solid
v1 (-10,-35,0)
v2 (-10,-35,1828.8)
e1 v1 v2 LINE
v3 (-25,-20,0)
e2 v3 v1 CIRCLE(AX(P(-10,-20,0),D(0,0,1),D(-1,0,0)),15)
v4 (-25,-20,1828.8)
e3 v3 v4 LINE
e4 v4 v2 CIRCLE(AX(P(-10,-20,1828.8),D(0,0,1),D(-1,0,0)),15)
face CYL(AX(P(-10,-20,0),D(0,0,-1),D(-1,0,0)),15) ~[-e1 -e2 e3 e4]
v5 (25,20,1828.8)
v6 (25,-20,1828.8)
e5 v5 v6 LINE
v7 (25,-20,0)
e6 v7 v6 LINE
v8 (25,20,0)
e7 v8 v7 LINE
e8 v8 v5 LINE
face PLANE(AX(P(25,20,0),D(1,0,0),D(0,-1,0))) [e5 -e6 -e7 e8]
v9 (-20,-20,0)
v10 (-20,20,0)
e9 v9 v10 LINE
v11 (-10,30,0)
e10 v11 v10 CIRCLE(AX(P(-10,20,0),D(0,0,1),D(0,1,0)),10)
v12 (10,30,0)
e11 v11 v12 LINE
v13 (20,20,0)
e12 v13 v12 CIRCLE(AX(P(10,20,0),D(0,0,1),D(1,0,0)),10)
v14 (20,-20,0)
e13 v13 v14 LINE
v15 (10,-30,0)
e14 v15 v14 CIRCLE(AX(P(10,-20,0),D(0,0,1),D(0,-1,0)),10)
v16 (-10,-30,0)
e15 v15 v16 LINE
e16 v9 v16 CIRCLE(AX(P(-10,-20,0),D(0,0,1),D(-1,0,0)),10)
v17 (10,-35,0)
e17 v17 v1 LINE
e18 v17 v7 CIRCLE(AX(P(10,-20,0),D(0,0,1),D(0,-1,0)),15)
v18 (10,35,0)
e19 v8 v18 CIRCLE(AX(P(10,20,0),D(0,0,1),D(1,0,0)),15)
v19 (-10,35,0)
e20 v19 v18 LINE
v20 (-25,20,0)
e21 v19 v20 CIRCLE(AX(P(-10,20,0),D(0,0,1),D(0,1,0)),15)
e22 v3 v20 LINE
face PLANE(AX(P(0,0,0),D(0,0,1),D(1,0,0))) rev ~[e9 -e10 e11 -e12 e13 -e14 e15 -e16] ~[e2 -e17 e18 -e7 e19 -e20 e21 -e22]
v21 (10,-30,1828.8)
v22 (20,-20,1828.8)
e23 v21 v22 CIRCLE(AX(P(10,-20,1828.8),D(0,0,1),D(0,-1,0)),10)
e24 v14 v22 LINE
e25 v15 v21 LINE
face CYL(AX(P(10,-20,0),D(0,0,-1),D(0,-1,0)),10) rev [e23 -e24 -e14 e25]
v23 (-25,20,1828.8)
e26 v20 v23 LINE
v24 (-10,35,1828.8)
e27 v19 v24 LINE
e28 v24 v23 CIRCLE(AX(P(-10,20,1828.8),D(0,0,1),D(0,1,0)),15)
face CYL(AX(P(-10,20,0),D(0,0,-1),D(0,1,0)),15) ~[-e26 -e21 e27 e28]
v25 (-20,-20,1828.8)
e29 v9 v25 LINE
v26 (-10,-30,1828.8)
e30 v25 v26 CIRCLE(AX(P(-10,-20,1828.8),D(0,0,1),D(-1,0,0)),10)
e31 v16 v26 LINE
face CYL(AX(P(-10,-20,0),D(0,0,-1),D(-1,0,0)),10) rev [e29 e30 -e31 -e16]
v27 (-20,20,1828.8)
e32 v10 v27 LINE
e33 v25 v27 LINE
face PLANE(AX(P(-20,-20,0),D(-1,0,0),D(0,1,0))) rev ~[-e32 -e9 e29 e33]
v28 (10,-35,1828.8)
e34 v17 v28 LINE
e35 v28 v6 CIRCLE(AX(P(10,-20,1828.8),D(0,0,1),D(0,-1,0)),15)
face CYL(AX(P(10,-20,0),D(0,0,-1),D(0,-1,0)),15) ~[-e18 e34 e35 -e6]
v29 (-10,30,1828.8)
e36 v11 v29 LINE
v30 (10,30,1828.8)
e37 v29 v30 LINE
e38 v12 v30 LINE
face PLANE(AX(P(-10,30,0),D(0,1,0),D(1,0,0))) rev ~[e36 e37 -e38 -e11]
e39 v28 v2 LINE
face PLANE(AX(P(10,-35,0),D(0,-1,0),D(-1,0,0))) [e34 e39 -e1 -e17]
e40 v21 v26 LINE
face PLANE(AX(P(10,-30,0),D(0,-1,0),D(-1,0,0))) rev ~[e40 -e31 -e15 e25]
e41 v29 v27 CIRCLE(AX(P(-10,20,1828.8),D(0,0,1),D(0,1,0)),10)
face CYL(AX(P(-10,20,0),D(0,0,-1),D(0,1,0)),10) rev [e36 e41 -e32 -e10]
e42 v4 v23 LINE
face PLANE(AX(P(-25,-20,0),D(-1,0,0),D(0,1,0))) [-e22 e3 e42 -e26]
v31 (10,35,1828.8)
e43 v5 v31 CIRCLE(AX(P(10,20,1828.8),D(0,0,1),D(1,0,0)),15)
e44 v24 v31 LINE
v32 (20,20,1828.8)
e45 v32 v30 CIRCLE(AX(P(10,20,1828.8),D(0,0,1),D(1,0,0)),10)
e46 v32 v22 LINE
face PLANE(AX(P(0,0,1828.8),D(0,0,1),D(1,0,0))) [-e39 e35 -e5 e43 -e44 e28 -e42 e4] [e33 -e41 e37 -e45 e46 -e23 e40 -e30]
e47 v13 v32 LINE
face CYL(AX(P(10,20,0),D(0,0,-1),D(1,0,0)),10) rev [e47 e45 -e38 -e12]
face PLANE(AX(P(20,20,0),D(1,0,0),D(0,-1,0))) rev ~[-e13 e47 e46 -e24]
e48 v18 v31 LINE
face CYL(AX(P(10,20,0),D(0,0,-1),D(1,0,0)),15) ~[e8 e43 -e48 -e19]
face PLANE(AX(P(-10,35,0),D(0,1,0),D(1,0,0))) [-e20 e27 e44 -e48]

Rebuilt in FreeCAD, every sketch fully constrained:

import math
import FreeCAD as App
import Part
import Sketcher
Q = App.Units.Quantity

doc = App.newDocument("Part")
body = doc.addObject("PartDesign::Body", "Body")

# Sketch on XY plane
sketch1 = doc.addObject("Sketcher::SketchObject", "Sketch")
body.addObject(sketch1)
sketch1.AttachmentSupport = (doc.XY_Plane, [""])
sketch1.MapMode = "FlatFace"
sketch1.addGeometry(Part.LineSegment(App.Vector(-25, 20, 0), App.Vector(-25, -20, 0)), False)
sketch1.addGeometry(Part.ArcOfCircle(Part.Circle(App.Vector(-10, -20, 0), App.Vector(0, 0, 1), 15), math.radians(180), math.radians(270)), False)
sketch1.addGeometry(Part.LineSegment(App.Vector(-10, -35, 0), App.Vector(10, -35, 0)), False)
sketch1.addGeometry(Part.ArcOfCircle(Part.Circle(App.Vector(10, -20, 0), App.Vector(0, 0, 1), 15), math.radians(-90), math.radians(0)), False)
sketch1.addGeometry(Part.LineSegment(App.Vector(25, -20, 0), App.Vector(25, 20, 0)), False)
sketch1.addGeometry(Part.ArcOfCircle(Part.Circle(App.Vector(10, 20, 0), App.Vector(0, 0, 1), 15), math.radians(0), math.radians(90)), False)
sketch1.addGeometry(Part.LineSegment(App.Vector(10, 35, 0), App.Vector(-10, 35, 0)), False)
sketch1.addGeometry(Part.ArcOfCircle(Part.Circle(App.Vector(-10, 20, 0), App.Vector(0, 0, 1), 15), math.radians(90), math.radians(180)), False)
sketch1.addGeometry(Part.ArcOfCircle(Part.Circle(App.Vector(-10, 20, 0), App.Vector(0, 0, 1), 10), math.radians(90), math.radians(180)), False)
sketch1.addGeometry(Part.LineSegment(App.Vector(-10, 30, 0), App.Vector(10, 30, 0)), False)
sketch1.addGeometry(Part.ArcOfCircle(Part.Circle(App.Vector(10, 20, 0), App.Vector(0, 0, 1), 10), math.radians(0), math.radians(90)), False)
sketch1.addGeometry(Part.LineSegment(App.Vector(20, 20, 0), App.Vector(20, -20, 0)), False)
sketch1.addGeometry(Part.ArcOfCircle(Part.Circle(App.Vector(10, -20, 0), App.Vector(0, 0, 1), 10), math.radians(-90), math.radians(0)), False)
sketch1.addGeometry(Part.LineSegment(App.Vector(10, -30, 0), App.Vector(-10, -30, 0)), False)
sketch1.addGeometry(Part.ArcOfCircle(Part.Circle(App.Vector(-10, -20, 0), App.Vector(0, 0, 1), 10), math.radians(180), math.radians(270)), False)
sketch1.addGeometry(Part.LineSegment(App.Vector(-20, -20, 0), App.Vector(-20, 20, 0)), False)
sketch1.addConstraint(Sketcher.Constraint("Tangent", 0, 2, 1, 1))
sketch1.addConstraint(Sketcher.Constraint("Tangent", 1, 2, 2, 1))
sketch1.addConstraint(Sketcher.Constraint("Tangent", 2, 2, 3, 1))
sketch1.addConstraint(Sketcher.Constraint("Tangent", 3, 2, 4, 1))
sketch1.addConstraint(Sketcher.Constraint("Tangent", 4, 2, 5, 1))
sketch1.addConstraint(Sketcher.Constraint("Tangent", 5, 2, 6, 1))
sketch1.addConstraint(Sketcher.Constraint("Tangent", 6, 2, 7, 1))
sketch1.addConstraint(Sketcher.Constraint("Tangent", 7, 2, 0, 1))
sketch1.addConstraint(Sketcher.Constraint("Tangent", 8, 1, 9, 1))
sketch1.addConstraint(Sketcher.Constraint("Tangent", 9, 2, 10, 2))
sketch1.addConstraint(Sketcher.Constraint("Tangent", 10, 1, 11, 1))
sketch1.addConstraint(Sketcher.Constraint("Tangent", 11, 2, 12, 2))
sketch1.addConstraint(Sketcher.Constraint("Tangent", 12, 1, 13, 1))
sketch1.addConstraint(Sketcher.Constraint("Tangent", 13, 2, 14, 2))
sketch1.addConstraint(Sketcher.Constraint("Tangent", 14, 1, 15, 1))
sketch1.addConstraint(Sketcher.Constraint("Tangent", 15, 2, 8, 2))
sketch1.addConstraint(Sketcher.Constraint("Vertical", 0))
sketch1.addConstraint(Sketcher.Constraint("Horizontal", 2))
sketch1.addConstraint(Sketcher.Constraint("Vertical", 4))
sketch1.addConstraint(Sketcher.Constraint("Horizontal", 6))
sketch1.addConstraint(Sketcher.Constraint("Horizontal", 9))
sketch1.addConstraint(Sketcher.Constraint("Vertical", 11))
sketch1.addConstraint(Sketcher.Constraint("Horizontal", 13))
sketch1.addConstraint(Sketcher.Constraint("Vertical", 15))
sketch1.addConstraint(Sketcher.Constraint("Coincident", 8, 3, 7, 3))
sketch1.addConstraint(Sketcher.Constraint("Coincident", 10, 3, 5, 3))
sketch1.addConstraint(Sketcher.Constraint("Coincident", 12, 3, 3, 3))
sketch1.addConstraint(Sketcher.Constraint("Equal", 1, 3))
sketch1.addConstraint(Sketcher.Constraint("Equal", 3, 5))
sketch1.addConstraint(Sketcher.Constraint("Equal", 5, 7))
sketch1.addConstraint(Sketcher.Constraint("Equal", 12, 14))
sketch1.addConstraint(Sketcher.Constraint("Symmetric", 1, 3, 5, 3, -1, 1))
sketch1.addConstraint(Sketcher.Constraint("Radius", 1, Q("15 mm")))
sketch1.addConstraint(Sketcher.Constraint("Radius", 8, Q("0.3937 in")))
sketch1.addConstraint(Sketcher.Constraint("DistanceX", 0, 2, -1, 1, Q("25 mm")))
sketch1.addConstraint(Sketcher.Constraint("DistanceY", 1, 2, -1, 1, Q("35 mm")))
pad1 = doc.addObject("PartDesign::Pad", "Pad")
body.addObject(pad1)
pad1.Profile = sketch1
pad1.Length = Q("72 in")

doc.recompute()
